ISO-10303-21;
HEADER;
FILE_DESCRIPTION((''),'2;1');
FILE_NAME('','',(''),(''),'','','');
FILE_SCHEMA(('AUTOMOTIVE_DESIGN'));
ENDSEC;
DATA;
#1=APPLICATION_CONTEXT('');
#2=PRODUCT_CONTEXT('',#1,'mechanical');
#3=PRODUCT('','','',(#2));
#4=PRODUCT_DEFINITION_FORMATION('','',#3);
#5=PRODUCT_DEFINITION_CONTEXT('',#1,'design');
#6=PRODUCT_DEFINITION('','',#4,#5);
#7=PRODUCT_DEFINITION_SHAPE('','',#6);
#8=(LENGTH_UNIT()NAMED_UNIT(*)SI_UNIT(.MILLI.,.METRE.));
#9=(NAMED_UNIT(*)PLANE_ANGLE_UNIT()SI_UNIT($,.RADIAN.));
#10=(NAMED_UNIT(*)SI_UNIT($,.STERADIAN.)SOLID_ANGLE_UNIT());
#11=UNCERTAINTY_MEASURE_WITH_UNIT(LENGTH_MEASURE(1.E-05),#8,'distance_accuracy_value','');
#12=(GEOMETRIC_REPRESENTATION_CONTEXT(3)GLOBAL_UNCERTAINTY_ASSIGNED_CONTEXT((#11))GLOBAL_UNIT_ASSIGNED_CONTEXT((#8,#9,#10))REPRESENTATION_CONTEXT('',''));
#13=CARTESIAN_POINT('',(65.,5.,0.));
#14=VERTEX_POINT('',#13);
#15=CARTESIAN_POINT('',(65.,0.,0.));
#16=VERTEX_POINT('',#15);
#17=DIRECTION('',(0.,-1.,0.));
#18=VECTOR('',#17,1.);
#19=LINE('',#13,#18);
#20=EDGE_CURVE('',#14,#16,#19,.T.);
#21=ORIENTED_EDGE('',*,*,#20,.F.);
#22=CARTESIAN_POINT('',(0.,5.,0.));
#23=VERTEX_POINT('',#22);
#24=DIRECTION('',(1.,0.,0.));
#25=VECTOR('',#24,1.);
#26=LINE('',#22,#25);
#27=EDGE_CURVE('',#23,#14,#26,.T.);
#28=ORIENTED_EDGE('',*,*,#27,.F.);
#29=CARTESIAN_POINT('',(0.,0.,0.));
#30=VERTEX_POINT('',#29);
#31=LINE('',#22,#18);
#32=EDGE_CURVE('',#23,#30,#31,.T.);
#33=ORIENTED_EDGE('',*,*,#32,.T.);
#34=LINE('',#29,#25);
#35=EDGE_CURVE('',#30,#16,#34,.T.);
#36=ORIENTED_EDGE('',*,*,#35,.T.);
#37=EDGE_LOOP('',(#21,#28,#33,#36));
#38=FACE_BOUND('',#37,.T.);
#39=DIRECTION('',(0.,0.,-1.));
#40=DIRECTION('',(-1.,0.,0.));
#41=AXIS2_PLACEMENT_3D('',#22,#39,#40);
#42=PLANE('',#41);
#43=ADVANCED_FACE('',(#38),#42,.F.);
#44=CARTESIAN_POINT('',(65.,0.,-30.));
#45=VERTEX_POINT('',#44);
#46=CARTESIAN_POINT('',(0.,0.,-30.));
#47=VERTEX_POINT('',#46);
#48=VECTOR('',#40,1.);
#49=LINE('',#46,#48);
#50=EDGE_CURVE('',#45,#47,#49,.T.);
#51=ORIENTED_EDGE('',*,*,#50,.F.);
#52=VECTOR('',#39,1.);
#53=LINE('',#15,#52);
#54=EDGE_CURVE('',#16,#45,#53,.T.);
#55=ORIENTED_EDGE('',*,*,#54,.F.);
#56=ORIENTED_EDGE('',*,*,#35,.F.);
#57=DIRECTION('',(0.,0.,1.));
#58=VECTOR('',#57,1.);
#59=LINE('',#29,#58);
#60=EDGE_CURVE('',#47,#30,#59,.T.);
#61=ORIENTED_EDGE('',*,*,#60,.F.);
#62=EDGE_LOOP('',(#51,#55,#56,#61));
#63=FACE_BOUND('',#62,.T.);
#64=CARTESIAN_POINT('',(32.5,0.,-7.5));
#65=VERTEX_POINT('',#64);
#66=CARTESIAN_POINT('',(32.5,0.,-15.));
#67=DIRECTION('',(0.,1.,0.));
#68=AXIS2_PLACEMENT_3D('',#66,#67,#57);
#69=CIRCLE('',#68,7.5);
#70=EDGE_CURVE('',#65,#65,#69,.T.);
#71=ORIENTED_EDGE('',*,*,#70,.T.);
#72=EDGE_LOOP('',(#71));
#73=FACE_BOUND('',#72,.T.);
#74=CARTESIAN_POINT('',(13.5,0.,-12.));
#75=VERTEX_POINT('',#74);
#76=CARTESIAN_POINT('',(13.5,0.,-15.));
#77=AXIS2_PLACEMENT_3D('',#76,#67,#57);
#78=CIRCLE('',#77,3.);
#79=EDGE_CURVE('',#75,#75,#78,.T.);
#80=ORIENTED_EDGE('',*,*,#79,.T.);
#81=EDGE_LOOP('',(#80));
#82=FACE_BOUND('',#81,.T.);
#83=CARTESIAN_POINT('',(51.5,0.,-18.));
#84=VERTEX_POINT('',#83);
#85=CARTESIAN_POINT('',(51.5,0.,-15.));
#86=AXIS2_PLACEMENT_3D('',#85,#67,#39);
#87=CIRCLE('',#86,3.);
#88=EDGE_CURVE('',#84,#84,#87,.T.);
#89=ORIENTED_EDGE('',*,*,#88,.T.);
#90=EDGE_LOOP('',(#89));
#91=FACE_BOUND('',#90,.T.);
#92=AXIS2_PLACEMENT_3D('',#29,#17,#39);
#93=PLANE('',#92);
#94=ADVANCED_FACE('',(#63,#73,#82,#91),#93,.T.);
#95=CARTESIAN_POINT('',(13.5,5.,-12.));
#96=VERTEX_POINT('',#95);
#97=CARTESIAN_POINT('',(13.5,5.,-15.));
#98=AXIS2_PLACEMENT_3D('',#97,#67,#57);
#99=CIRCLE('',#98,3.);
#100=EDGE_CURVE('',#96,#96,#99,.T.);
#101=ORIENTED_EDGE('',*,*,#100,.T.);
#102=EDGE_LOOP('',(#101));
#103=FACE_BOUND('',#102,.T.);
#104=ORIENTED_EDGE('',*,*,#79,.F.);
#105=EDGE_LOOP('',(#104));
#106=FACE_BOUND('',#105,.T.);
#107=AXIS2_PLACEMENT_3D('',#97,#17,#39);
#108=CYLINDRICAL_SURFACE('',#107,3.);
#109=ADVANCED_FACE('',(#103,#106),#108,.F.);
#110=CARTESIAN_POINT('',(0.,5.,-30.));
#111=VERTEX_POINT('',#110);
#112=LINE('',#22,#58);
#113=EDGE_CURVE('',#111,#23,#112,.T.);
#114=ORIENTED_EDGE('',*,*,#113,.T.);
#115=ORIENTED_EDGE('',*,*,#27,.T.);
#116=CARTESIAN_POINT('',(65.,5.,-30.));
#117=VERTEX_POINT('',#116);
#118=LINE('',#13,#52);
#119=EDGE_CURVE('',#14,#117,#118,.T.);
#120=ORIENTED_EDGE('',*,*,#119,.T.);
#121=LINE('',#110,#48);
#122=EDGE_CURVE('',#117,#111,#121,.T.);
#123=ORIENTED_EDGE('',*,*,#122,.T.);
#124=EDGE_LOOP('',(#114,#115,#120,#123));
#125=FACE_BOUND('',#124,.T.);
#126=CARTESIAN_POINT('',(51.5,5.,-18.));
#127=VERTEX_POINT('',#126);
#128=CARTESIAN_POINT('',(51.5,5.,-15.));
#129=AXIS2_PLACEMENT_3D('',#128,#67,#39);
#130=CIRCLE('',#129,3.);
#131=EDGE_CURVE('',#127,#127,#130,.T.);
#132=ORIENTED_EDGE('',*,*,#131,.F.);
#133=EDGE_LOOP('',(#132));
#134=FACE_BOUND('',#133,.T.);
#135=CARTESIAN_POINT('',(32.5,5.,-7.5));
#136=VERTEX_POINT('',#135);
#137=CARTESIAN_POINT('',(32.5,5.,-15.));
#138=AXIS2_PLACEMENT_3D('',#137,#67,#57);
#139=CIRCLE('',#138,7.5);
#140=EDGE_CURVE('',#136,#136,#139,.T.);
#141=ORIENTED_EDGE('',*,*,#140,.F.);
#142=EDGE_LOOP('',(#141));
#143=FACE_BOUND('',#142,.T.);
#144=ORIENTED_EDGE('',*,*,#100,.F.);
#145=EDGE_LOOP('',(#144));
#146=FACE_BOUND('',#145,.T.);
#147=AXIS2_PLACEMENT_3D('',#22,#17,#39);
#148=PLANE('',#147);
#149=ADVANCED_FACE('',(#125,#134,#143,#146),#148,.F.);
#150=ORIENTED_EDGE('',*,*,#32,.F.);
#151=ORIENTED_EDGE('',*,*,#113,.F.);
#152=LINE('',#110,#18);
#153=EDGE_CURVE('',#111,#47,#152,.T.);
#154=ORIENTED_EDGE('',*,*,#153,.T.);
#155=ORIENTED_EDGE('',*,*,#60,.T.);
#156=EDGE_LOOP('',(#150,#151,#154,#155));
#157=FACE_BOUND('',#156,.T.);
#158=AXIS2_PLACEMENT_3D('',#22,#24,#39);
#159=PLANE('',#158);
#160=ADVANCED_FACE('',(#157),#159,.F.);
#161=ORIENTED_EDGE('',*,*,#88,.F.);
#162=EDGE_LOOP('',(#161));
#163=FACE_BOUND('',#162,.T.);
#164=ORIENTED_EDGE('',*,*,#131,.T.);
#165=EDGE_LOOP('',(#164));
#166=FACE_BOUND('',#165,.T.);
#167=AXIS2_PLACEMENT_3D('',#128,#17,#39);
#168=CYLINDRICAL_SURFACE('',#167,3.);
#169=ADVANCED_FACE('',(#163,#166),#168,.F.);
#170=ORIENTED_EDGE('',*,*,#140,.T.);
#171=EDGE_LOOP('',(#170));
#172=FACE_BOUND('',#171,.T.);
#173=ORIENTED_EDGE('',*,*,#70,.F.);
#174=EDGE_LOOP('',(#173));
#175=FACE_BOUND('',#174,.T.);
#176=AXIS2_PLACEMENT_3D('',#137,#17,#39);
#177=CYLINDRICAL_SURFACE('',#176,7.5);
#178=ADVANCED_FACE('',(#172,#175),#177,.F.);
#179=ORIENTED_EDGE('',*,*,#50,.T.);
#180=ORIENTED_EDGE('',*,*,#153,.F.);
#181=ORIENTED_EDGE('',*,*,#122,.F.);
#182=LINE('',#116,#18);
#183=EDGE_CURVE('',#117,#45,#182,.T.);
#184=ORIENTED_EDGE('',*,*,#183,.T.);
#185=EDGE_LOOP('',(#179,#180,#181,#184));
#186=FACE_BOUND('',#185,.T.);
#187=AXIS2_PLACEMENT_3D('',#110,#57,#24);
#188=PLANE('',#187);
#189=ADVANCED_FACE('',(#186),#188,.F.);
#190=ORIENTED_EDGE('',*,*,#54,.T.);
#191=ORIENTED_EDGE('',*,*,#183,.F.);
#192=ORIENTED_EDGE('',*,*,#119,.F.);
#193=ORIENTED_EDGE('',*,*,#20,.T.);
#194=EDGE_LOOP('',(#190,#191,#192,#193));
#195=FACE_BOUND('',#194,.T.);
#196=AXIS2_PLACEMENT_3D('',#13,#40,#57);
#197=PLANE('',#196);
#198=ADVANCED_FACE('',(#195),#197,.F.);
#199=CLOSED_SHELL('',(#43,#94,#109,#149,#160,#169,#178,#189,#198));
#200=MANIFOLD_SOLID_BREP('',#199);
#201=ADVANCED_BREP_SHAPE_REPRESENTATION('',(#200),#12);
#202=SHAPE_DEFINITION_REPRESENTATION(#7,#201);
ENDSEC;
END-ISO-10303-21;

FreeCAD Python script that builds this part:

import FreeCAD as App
import Part
import Sketcher
Q = App.Units.Quantity

doc = App.newDocument("Part")
body = doc.addObject("PartDesign::Body", "Body")

# Sketch on XZ plane
sketch1 = body.newObject("Sketcher::SketchObject", "Sketch")
sketch1.AttachmentSupport = (doc.getObject("XZ_Plane"), [""])
sketch1.MapMode = "FlatFace"
sketch1.addGeometry([
    Part.LineSegment(App.Vector(0, -30, 0), App.Vector(0, 0, 0)),  # 0
    Part.LineSegment(App.Vector(0, 0, 0), App.Vector(65, 0, 0)),  # 1
    Part.LineSegment(App.Vector(65, 0, 0), App.Vector(65, -30, 0)),  # 2
    Part.LineSegment(App.Vector(65, -30, 0), App.Vector(0, -30, 0)),  # 3
    Part.Circle(App.Vector(13.5, -15, 0), App.Vector(0, 0, 1), 3),  # 4
    Part.Circle(App.Vector(32.5, -15, 0), App.Vector(0, 0, 1), 7.5),  # 5
    Part.Circle(App.Vector(51.5, -15, 0), App.Vector(0, 0, 1), 3),  # 6
], False)
sketch1.addConstraint([
    Sketcher.Constraint("Coincident", 0, 2, 1, 1),
    Sketcher.Constraint("Coincident", 1, 2, 2, 1),
    Sketcher.Constraint("Coincident", 2, 2, 3, 1),
    Sketcher.Constraint("Coincident", 3, 2, 0, 1),
    Sketcher.Constraint("Vertical", 0),
    Sketcher.Constraint("Horizontal", 1),
    Sketcher.Constraint("Vertical", 2),
    Sketcher.Constraint("Horizontal", 3),
    Sketcher.Constraint("Coincident", 0, 2, -1, 1),
    Sketcher.Constraint("Equal", 4, 6),
    Sketcher.Constraint("Horizontal", 4, 3, 5, 3),
    Sketcher.Constraint("Horizontal", 5, 3, 6, 3),
    Sketcher.Constraint("Diameter", 4, Q("6 mm")),
    Sketcher.Constraint("Diameter", 5, Q("15 mm")),
    Sketcher.Constraint("DistanceX", 1, 1, 1, 2, Q("65 mm")),
    Sketcher.Constraint("DistanceY", 0, 1, 0, 2, Q("30 mm")),
    Sketcher.Constraint("DistanceY", 4, 3, -1, 1, Q("15 mm")),
    Sketcher.Constraint("DistanceX", 4, 3, 5, 3, Q("19 mm")),
    Sketcher.Constraint("DistanceX", 5, 3, 6, 3, Q("19 mm")),
    Sketcher.Constraint("DistanceX", -1, 1, 4, 3, Q("13.5 mm")),
])
pad1 = body.newObject("PartDesign::Pad", "Pad")
pad1.Profile = sketch1
pad1.Length = 5
pad1.Reversed = True

doc.recompute()
